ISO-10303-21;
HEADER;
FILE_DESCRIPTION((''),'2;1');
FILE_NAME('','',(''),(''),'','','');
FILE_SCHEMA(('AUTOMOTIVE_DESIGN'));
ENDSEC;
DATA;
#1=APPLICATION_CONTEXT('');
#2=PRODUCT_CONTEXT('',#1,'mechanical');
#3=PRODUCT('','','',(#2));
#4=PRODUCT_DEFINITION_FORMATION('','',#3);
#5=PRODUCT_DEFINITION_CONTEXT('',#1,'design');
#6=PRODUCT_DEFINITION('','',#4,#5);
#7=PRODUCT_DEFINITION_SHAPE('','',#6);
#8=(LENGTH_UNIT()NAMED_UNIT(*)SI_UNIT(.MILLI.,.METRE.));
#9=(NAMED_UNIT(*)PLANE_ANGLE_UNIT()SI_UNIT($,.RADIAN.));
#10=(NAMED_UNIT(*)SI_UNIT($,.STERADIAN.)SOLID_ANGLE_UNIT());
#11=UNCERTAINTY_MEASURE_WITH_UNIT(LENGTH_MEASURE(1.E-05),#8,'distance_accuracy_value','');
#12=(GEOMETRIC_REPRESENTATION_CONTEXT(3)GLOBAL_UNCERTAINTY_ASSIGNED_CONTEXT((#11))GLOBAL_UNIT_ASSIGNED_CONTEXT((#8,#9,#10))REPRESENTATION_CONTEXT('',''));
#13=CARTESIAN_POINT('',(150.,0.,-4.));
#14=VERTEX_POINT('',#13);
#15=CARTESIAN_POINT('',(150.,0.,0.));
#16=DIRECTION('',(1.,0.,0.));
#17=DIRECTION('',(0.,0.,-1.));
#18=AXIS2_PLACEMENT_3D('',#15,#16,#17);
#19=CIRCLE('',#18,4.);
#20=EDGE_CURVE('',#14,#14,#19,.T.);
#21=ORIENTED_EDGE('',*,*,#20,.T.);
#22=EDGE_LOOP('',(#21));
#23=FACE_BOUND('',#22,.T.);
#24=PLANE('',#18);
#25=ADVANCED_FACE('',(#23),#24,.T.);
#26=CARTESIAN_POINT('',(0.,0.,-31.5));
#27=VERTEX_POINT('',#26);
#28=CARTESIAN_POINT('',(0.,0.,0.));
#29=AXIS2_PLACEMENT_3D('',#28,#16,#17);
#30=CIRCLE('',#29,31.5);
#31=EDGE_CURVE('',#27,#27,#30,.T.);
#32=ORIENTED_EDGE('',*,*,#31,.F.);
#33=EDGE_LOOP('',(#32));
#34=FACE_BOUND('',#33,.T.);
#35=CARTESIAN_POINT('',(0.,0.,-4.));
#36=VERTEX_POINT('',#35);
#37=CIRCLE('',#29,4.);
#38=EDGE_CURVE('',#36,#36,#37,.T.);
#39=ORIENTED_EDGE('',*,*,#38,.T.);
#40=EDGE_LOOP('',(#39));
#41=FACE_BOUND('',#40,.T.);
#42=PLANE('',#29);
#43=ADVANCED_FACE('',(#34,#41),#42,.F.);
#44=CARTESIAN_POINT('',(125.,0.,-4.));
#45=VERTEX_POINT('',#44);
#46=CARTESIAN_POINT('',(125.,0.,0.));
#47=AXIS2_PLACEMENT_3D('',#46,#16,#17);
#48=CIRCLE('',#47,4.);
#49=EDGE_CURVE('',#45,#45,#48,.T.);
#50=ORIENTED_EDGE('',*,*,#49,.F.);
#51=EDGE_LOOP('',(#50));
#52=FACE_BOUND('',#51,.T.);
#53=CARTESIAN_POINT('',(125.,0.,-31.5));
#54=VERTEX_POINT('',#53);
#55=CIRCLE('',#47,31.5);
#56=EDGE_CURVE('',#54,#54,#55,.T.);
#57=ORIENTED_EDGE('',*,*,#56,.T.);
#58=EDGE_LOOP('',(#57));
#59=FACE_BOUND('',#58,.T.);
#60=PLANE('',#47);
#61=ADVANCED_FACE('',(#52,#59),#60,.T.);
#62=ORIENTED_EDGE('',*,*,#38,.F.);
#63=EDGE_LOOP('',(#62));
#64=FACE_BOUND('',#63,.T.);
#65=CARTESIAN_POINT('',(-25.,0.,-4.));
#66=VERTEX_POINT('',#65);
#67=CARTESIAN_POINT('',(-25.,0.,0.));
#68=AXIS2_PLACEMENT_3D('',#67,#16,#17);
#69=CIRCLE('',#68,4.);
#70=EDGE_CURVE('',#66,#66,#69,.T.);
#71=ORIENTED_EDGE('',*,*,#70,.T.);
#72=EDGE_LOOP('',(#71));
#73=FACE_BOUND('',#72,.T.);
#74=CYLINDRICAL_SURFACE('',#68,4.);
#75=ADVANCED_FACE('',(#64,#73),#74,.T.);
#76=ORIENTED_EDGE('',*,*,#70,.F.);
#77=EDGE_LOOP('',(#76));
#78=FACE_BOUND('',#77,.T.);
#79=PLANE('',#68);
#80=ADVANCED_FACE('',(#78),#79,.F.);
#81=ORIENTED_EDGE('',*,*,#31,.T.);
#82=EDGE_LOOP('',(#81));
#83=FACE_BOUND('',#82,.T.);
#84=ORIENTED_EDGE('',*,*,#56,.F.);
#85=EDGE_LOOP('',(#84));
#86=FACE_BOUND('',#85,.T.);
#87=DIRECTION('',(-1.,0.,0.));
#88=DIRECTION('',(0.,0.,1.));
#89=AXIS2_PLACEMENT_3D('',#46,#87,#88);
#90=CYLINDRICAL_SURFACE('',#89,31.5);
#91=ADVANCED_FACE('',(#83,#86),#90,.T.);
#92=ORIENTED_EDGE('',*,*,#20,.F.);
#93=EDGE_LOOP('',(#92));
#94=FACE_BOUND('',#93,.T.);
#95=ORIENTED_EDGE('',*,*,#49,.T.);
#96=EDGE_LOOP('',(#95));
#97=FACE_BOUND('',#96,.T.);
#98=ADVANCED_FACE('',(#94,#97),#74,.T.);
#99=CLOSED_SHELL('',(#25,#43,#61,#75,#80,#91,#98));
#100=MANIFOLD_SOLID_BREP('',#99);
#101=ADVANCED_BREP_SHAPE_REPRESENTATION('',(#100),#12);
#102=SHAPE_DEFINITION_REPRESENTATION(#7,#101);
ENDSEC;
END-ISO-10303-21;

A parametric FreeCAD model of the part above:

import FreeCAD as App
import Part
import Sketcher

doc = App.newDocument("Part")
body = doc.addObject("PartDesign::Body", "Body")

# Sketch on YZ plane
sketch1 = body.newObject("Sketcher::SketchObject", "Sketch")
sketch1.AttachmentSupport = (doc.getObject("YZ_Plane"), [""])
sketch1.MapMode = "FlatFace"
sketch1.addGeometry([
    Part.Circle(App.Vector(0, 0, 0), App.Vector(0, 0, 1), 31.5),
    Part.Circle(App.Vector(0, 0, 0), App.Vector(0, 0, 1), 4),
], False)
sketch1.addConstraint([
    Sketcher.Constraint("Coincident", 0, 3, -1, 1),
    Sketcher.Constraint("Coincident", 1, 3, -1, 1),
    Sketcher.Constraint("Diameter", 0, 63.0),
    Sketcher.Constraint("Diameter", 1, 8.0),
])
pad1 = body.newObject("PartDesign::Pad", "Pad")
pad1.Profile = sketch1
pad1.Length = 125

# Sketch on YZ plane
sketch2 = body.newObject("Sketcher::SketchObject", "Sketch001")
sketch2.AttachmentSupport = (doc.getObject("YZ_Plane"), [""])
sketch2.MapMode = "FlatFace"
sketch2.addGeometry(Part.Circle(App.Vector(0, 0, 0), App.Vector(0, 0, 1), 4), False)
sketch2.addConstraint([
    Sketcher.Constraint("Coincident", 0, 3, -1, 1),
    Sketcher.Constraint("Diameter", 0, 8.0),
])
pad2 = body.newObject("PartDesign::Pad", "Pad001")
pad2.Profile = sketch2
pad2.Type = "TwoLengths"
pad2.Length = 150
pad2.Length2 = 25

doc.recompute()
